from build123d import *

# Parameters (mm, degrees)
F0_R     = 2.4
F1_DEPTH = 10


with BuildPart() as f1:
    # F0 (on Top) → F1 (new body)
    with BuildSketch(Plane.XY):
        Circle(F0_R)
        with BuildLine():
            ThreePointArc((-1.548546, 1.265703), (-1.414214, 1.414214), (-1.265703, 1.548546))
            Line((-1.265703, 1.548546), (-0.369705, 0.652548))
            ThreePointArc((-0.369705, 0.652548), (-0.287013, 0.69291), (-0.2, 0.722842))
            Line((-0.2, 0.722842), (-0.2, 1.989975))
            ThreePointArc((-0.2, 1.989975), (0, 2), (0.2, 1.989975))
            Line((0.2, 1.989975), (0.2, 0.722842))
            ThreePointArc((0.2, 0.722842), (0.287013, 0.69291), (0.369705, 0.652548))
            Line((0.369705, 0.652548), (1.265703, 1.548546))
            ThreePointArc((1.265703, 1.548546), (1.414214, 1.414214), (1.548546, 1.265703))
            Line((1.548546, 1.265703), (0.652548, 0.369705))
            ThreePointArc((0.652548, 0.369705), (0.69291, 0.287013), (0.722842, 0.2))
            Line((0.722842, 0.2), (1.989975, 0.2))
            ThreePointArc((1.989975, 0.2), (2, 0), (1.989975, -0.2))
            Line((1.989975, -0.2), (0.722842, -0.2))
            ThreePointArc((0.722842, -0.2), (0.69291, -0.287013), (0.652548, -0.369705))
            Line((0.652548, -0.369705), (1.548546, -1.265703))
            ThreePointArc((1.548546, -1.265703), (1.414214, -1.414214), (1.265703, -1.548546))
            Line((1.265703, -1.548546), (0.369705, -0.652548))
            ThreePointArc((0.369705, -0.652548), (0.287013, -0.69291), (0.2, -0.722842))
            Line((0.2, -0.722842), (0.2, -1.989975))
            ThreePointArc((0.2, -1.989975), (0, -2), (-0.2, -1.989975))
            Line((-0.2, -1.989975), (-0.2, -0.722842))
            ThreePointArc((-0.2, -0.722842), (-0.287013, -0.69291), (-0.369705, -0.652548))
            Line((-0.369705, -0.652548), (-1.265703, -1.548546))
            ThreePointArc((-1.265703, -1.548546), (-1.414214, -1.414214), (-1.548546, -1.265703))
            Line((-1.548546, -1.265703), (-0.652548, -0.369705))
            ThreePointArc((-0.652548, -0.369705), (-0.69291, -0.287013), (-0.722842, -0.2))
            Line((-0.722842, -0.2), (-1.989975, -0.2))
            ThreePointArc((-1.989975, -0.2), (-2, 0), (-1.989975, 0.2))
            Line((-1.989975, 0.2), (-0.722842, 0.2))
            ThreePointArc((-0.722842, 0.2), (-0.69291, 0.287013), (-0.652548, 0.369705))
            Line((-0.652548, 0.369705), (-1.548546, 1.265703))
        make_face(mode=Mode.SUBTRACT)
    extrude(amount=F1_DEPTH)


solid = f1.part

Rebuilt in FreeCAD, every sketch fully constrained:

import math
import FreeCAD as App
import Part
import Sketcher

V = App.Vector
Q = App.Units.Quantity

doc = App.newDocument("Part")
body = doc.addObject("PartDesign::Body", "Body")

# Sketch on XY plane
sketch1 = body.newObject("Sketcher::SketchObject", "Sketch")
sketch1.AttachmentSupport = (doc.getObject("XY_Plane"), [""])
sketch1.MapMode = "FlatFace"
sketch1.addGeometry(Part.Circle(V(0, 0, 0), V(0, 0, 1), 2.4), False)
sketch1.addGeometry(Part.LineSegment(V(-0.65, 0.37, 0), V(-1.55, 1.27, 0)), False)
sketch1.addGeometry(Part.ArcOfCircle(Part.Circle(V(0, 0, 0), V(0, 0, 1), 2), math.radians(129.26), math.radians(140.74)), False)
sketch1.addGeometry(Part.LineSegment(V(-1.27, 1.55, 0), V(-0.37, 0.65, 0)), False)
sketch1.addGeometry(Part.ArcOfCircle(Part.Circle(V(0, 0, 0), V(0, 0, 1), 0.75), math.radians(105.47), math.radians(119.53)), False)
sketch1.addGeometry(Part.LineSegment(V(-0.2, 0.72, 0), V(-0.2, 1.99, 0)), False)
sketch1.addGeometry(Part.ArcOfCircle(Part.Circle(V(0, 0, 0), V(0, 0, 1), 2), math.radians(84.26), math.radians(95.74)), False)
sketch1.addGeometry(Part.LineSegment(V(0.2, 1.99, 0), V(0.2, 0.72, 0)), False)
sketch1.addGeometry(Part.ArcOfCircle(Part.Circle(V(0, 0, 0), V(0, 0, 1), 0.75), math.radians(60.47), math.radians(74.53)), False)
sketch1.addGeometry(Part.LineSegment(V(0.37, 0.65, 0), V(1.27, 1.55, 0)), False)
sketch1.addGeometry(Part.ArcOfCircle(Part.Circle(V(0, 0, 0), V(0, 0, 1), 2), math.radians(39.26), math.radians(50.74)), False)
sketch1.addGeometry(Part.LineSegment(V(1.55, 1.27, 0), V(0.65, 0.37, 0)), False)
sketch1.addGeometry(Part.ArcOfCircle(Part.Circle(V(0, 0, 0), V(0, 0, 1), 0.75), math.radians(15.47), math.radians(29.53)), False)
sketch1.addGeometry(Part.LineSegment(V(0.72, 0.2, 0), V(1.99, 0.2, 0)), False)
sketch1.addGeometry(Part.ArcOfCircle(Part.Circle(V(0, 0, 0), V(0, 0, 1), 2), math.radians(-5.74), math.radians(5.74)), False)
sketch1.addGeometry(Part.LineSegment(V(1.99, -0.2, 0), V(0.72, -0.2, 0)), False)
sketch1.addGeometry(Part.ArcOfCircle(Part.Circle(V(0, 0, 0), V(0, 0, 1), 0.75), math.radians(-29.53), math.radians(-15.47)), False)
sketch1.addGeometry(Part.LineSegment(V(0.65, -0.37, 0), V(1.55, -1.27, 0)), False)
sketch1.addGeometry(Part.ArcOfCircle(Part.Circle(V(0, 0, 0), V(0, 0, 1), 2), math.radians(-50.74), math.radians(-39.26)), False)
sketch1.addGeometry(Part.LineSegment(V(1.27, -1.55, 0), V(0.37, -0.65, 0)), False)
sketch1.addGeometry(Part.ArcOfCircle(Part.Circle(V(0, 0, 0), V(0, 0, 1), 0.75), math.radians(-74.53), math.radians(-60.47)), False)
sketch1.addGeometry(Part.LineSegment(V(0.2, -0.72, 0), V(0.2, -1.99, 0)), False)
sketch1.addGeometry(Part.ArcOfCircle(Part.Circle(V(0, 0, 0), V(0, 0, 1), 2), math.radians(-95.74), math.radians(-84.26)), False)
sketch1.addGeometry(Part.LineSegment(V(-0.2, -1.99, 0), V(-0.2, -0.72, 0)), False)
sketch1.addGeometry(Part.ArcOfCircle(Part.Circle(V(0, 0, 0), V(0, 0, 1), 0.75), math.radians(-119.53), math.radians(-105.47)), False)
sketch1.addGeometry(Part.LineSegment(V(-0.37, -0.65, 0), V(-1.27, -1.55, 0)), False)
sketch1.addGeometry(Part.ArcOfCircle(Part.Circle(V(0, 0, 0), V(0, 0, 1), 2), math.radians(-140.74), math.radians(-129.26)), False)
sketch1.addGeometry(Part.LineSegment(V(-1.55, -1.27, 0), V(-0.65, -0.37, 0)), False)
sketch1.addGeometry(Part.ArcOfCircle(Part.Circle(V(0, 0, 0), V(0, 0, 1), 0.75), math.radians(-164.53), math.radians(-150.47)), False)
sketch1.addGeometry(Part.LineSegment(V(-0.72, -0.2, 0), V(-1.99, -0.2, 0)), False)
sketch1.addGeometry(Part.ArcOfCircle(Part.Circle(V(0, 0, 0), V(0, 0, 1), 2), math.radians(174.26), math.radians(185.74)), False)
sketch1.addGeometry(Part.LineSegment(V(-1.99, 0.2, 0), V(-0.72, 0.2, 0)), False)
sketch1.addGeometry(Part.ArcOfCircle(Part.Circle(V(0, 0, 0), V(0, 0, 1), 0.75), math.radians(150.47), math.radians(164.53)), False)
sketch1.addConstraint(Sketcher.Constraint("Coincident", 1, 2, 2, 2))
sketch1.addConstraint(Sketcher.Constraint("Coincident", 2, 1, 3, 1))
sketch1.addConstraint(Sketcher.Constraint("Coincident", 3, 2, 4, 2))
sketch1.addConstraint(Sketcher.Constraint("Coincident", 4, 1, 5, 1))
sketch1.addConstraint(Sketcher.Constraint("Coincident", 5, 2, 6, 2))
sketch1.addConstraint(Sketcher.Constraint("Coincident", 6, 1, 7, 1))
sketch1.addConstraint(Sketcher.Constraint("Coincident", 7, 2, 8, 2))
sketch1.addConstraint(Sketcher.Constraint("Coincident", 8, 1, 9, 1))
sketch1.addConstraint(Sketcher.Constraint("Coincident", 9, 2, 10, 2))
sketch1.addConstraint(Sketcher.Constraint("Coincident", 10, 1, 11, 1))
sketch1.addConstraint(Sketcher.Constraint("Coincident", 11, 2, 12, 2))
sketch1.addConstraint(Sketcher.Constraint("Coincident", 12, 1, 13, 1))
sketch1.addConstraint(Sketcher.Constraint("Coincident", 13, 2, 14, 2))
sketch1.addConstraint(Sketcher.Constraint("Coincident", 14, 1, 15, 1))
sketch1.addConstraint(Sketcher.Constraint("Coincident", 15, 2, 16, 2))
sketch1.addConstraint(Sketcher.Constraint("Coincident", 16, 1, 17, 1))
sketch1.addConstraint(Sketcher.Constraint("Coincident", 17, 2, 18, 2))
sketch1.addConstraint(Sketcher.Constraint("Coincident", 18, 1, 19, 1))
sketch1.addConstraint(Sketcher.Constraint("Coincident", 19, 2, 20, 2))
sketch1.addConstraint(Sketcher.Constraint("Coincident", 20, 1, 21, 1))
sketch1.addConstraint(Sketcher.Constraint("Coincident", 21, 2, 22, 2))
sketch1.addConstraint(Sketcher.Constraint("Coincident", 22, 1, 23, 1))
sketch1.addConstraint(Sketcher.Constraint("Coincident", 23, 2, 24, 2))
sketch1.addConstraint(Sketcher.Constraint("Coincident", 24, 1, 25, 1))
sketch1.addConstraint(Sketcher.Constraint("Coincident", 25, 2, 26, 2))
sketch1.addConstraint(Sketcher.Constraint("Coincident", 26, 1, 27, 1))
sketch1.addConstraint(Sketcher.Constraint("Coincident", 27, 2, 28, 2))
sketch1.addConstraint(Sketcher.Constraint("Coincident", 28, 1, 29, 1))
sketch1.addConstraint(Sketcher.Constraint("Coincident", 29, 2, 30, 2))
sketch1.addConstraint(Sketcher.Constraint("Coincident", 30, 1, 31, 1))
sketch1.addConstraint(Sketcher.Constraint("Coincident", 31, 2, 32, 2))
sketch1.addConstraint(Sketcher.Constraint("Coincident", 32, 1, 1, 1))
sketch1.addConstraint(Sketcher.Constraint("Vertical", 5))
sketch1.addConstraint(Sketcher.Constraint("Vertical", 7))
sketch1.addConstraint(Sketcher.Constraint("Horizontal", 13))
sketch1.addConstraint(Sketcher.Constraint("Horizontal", 15))
sketch1.addConstraint(Sketcher.Constraint("Vertical", 21))
sketch1.addConstraint(Sketcher.Constraint("Vertical", 23))
sketch1.addConstraint(Sketcher.Constraint("Horizontal", 29))
sketch1.addConstraint(Sketcher.Constraint("Horizontal", 31))
sketch1.addConstraint(Sketcher.Constraint("Coincident", 0, 3, -1, 1))
sketch1.addConstraint(Sketcher.Constraint("Coincident", 4, 3, -1, 1))
sketch1.addConstraint(Sketcher.Constraint("Coincident", 8, 3, -1, 1))
sketch1.addConstraint(Sketcher.Constraint("Coincident", 12, 3, -1, 1))
sketch1.addConstraint(Sketcher.Constraint("Coincident", 16, 3, -1, 1))
sketch1.addConstraint(Sketcher.Constraint("Coincident", 20, 3, -1, 1))
sketch1.addConstraint(Sketcher.Constraint("Coincident", 24, 3, -1, 1))
sketch1.addConstraint(Sketcher.Constraint("Coincident", 28, 3, -1, 1))
sketch1.addConstraint(Sketcher.Constraint("Coincident", 32, 3, -1, 1))
sketch1.addConstraint(Sketcher.Constraint("Equal", 4, 8))
sketch1.addConstraint(Sketcher.Constraint("Equal", 2, 10))
sketch1.addConstraint(Sketcher.Constraint("Equal", 8, 12))
sketch1.addConstraint(Sketcher.Constraint("Equal", 6, 14))
sketch1.addConstraint(Sketcher.Constraint("Equal", 12, 16))
sketch1.addConstraint(Sketcher.Constraint("Equal", 10, 18))
sketch1.addConstraint(Sketcher.Constraint("Equal", 16, 20))
sketch1.addConstraint(Sketcher.Constraint("Equal", 14, 22))
sketch1.addConstraint(Sketcher.Constraint("Equal", 20, 24))
sketch1.addConstraint(Sketcher.Constraint("Equal", 18, 26))
sketch1.addConstraint(Sketcher.Constraint("Equal", 24, 28))
sketch1.addConstraint(Sketcher.Constraint("Equal", 22, 30))
sketch1.addConstraint(Sketcher.Constraint("Equal", 28, 32))
sketch1.addConstraint(Sketcher.Constraint("Symmetric", 2, 3, 18, 3, -1, 1))
sketch1.addConstraint(Sketcher.Constraint("Symmetric", 6, 3, 22, 3, -1, 1))
sketch1.addConstraint(Sketcher.Constraint("Symmetric", 10, 3, 26, 3, -1, 1))
sketch1.addConstraint(Sketcher.Constraint("Symmetric", 14, 3, 30, 3, -1, 1))
sketch1.addConstraint(Sketcher.Constraint("Symmetric", 2, 3, 10, 3, -2))
sketch1.addConstraint(Sketcher.Constraint("Symmetric", 5, 2, 6, 1, -2))
sketch1.addConstraint(Sketcher.Constraint("Symmetric", 14, 1, 29, 2, -2))
sketch1.addConstraint(Sketcher.Constraint("Parallel", 1, 3))
sketch1.addConstraint(Sketcher.Constraint("Perpendicular", 3, 9))
sketch1.addConstraint(Sketcher.Constraint("Parallel", 9, 11))
sketch1.addConstraint(Sketcher.Constraint("Perpendicular", 11, 17))
sketch1.addConstraint(Sketcher.Constraint("Parallel", 17, 19))
sketch1.addConstraint(Sketcher.Constraint("Perpendicular", 19, 25))
sketch1.addConstraint(Sketcher.Constraint("Parallel", 25, 27))
sketch1.addConstraint(Sketcher.Constraint("Horizontal", 3, 2, 8, 1))
sketch1.addConstraint(Sketcher.Constraint("Horizontal", 2, 1, 9, 2))
sketch1.addConstraint(Sketcher.Constraint("Horizontal", 1, 2, 10, 1))
sketch1.addConstraint(Sketcher.Constraint("Horizontal", 21, 2, 22, 1))
sketch1.addConstraint(Sketcher.Constraint("Horizontal", 19, 2, 24, 1))
sketch1.addConstraint(Sketcher.Constraint("Horizontal", 17, 2, 26, 1))
sketch1.addConstraint(Sketcher.Constraint("Horizontal", 13, 2, 30, 1))
sketch1.addConstraint(Sketcher.Constraint("Vertical", 13, 2, 14, 1))
sketch1.addConstraint(Sketcher.Constraint("Vertical", 11, 2, 16, 1))
sketch1.addConstraint(Sketcher.Constraint("Vertical", 9, 2, 18, 1))
sketch1.addConstraint(Sketcher.Constraint("Vertical", 7, 2, 20, 1))
sketch1.addConstraint(Sketcher.Constraint("Equal", 31, 5))
sketch1.addConstraint(Sketcher.Constraint("Equal", 1, 3))
sketch1.addConstraint(Sketcher.Constraint("Diameter", 0, Q("4.8 mm")))
sketch1.addConstraint(Sketcher.Constraint("DistanceX", 4, 1, -1, 1, Q("0.2 mm")))
sketch1.addConstraint(Sketcher.Constraint("DistanceY", -1, 1, 12, 1, Q("0.2 mm")))
sketch1.addConstraint(Sketcher.Constraint("Radius", 4, Q("0.749991 mm")))
sketch1.addConstraint(Sketcher.Constraint("Radius", 2, Q("1.999817 mm")))
sketch1.addConstraint(Sketcher.Constraint("Radius", 6, Q("2.000025 mm")))
sketch1.addConstraint(Sketcher.Constraint("DistanceX", 8, 1, 9, 2, Q("0.895998 mm")))
sketch1.addConstraint(Sketcher.Constraint("DistanceY", 32, 3, 1, 2, Q("1.265699 mm")))
sketch1.addConstraint(Sketcher.Constraint("DistanceX", 3, 2, 4, 3, Q("0.369701 mm")))
sketch1.addConstraint(Sketcher.Constraint("DistanceX", 13, 1, 13, 2, Q("1.267133 mm")))
pad1 = body.newObject("PartDesign::Pad", "Pad")
pad1.Profile = sketch1
pad1.Length = 10

doc.recompute()
